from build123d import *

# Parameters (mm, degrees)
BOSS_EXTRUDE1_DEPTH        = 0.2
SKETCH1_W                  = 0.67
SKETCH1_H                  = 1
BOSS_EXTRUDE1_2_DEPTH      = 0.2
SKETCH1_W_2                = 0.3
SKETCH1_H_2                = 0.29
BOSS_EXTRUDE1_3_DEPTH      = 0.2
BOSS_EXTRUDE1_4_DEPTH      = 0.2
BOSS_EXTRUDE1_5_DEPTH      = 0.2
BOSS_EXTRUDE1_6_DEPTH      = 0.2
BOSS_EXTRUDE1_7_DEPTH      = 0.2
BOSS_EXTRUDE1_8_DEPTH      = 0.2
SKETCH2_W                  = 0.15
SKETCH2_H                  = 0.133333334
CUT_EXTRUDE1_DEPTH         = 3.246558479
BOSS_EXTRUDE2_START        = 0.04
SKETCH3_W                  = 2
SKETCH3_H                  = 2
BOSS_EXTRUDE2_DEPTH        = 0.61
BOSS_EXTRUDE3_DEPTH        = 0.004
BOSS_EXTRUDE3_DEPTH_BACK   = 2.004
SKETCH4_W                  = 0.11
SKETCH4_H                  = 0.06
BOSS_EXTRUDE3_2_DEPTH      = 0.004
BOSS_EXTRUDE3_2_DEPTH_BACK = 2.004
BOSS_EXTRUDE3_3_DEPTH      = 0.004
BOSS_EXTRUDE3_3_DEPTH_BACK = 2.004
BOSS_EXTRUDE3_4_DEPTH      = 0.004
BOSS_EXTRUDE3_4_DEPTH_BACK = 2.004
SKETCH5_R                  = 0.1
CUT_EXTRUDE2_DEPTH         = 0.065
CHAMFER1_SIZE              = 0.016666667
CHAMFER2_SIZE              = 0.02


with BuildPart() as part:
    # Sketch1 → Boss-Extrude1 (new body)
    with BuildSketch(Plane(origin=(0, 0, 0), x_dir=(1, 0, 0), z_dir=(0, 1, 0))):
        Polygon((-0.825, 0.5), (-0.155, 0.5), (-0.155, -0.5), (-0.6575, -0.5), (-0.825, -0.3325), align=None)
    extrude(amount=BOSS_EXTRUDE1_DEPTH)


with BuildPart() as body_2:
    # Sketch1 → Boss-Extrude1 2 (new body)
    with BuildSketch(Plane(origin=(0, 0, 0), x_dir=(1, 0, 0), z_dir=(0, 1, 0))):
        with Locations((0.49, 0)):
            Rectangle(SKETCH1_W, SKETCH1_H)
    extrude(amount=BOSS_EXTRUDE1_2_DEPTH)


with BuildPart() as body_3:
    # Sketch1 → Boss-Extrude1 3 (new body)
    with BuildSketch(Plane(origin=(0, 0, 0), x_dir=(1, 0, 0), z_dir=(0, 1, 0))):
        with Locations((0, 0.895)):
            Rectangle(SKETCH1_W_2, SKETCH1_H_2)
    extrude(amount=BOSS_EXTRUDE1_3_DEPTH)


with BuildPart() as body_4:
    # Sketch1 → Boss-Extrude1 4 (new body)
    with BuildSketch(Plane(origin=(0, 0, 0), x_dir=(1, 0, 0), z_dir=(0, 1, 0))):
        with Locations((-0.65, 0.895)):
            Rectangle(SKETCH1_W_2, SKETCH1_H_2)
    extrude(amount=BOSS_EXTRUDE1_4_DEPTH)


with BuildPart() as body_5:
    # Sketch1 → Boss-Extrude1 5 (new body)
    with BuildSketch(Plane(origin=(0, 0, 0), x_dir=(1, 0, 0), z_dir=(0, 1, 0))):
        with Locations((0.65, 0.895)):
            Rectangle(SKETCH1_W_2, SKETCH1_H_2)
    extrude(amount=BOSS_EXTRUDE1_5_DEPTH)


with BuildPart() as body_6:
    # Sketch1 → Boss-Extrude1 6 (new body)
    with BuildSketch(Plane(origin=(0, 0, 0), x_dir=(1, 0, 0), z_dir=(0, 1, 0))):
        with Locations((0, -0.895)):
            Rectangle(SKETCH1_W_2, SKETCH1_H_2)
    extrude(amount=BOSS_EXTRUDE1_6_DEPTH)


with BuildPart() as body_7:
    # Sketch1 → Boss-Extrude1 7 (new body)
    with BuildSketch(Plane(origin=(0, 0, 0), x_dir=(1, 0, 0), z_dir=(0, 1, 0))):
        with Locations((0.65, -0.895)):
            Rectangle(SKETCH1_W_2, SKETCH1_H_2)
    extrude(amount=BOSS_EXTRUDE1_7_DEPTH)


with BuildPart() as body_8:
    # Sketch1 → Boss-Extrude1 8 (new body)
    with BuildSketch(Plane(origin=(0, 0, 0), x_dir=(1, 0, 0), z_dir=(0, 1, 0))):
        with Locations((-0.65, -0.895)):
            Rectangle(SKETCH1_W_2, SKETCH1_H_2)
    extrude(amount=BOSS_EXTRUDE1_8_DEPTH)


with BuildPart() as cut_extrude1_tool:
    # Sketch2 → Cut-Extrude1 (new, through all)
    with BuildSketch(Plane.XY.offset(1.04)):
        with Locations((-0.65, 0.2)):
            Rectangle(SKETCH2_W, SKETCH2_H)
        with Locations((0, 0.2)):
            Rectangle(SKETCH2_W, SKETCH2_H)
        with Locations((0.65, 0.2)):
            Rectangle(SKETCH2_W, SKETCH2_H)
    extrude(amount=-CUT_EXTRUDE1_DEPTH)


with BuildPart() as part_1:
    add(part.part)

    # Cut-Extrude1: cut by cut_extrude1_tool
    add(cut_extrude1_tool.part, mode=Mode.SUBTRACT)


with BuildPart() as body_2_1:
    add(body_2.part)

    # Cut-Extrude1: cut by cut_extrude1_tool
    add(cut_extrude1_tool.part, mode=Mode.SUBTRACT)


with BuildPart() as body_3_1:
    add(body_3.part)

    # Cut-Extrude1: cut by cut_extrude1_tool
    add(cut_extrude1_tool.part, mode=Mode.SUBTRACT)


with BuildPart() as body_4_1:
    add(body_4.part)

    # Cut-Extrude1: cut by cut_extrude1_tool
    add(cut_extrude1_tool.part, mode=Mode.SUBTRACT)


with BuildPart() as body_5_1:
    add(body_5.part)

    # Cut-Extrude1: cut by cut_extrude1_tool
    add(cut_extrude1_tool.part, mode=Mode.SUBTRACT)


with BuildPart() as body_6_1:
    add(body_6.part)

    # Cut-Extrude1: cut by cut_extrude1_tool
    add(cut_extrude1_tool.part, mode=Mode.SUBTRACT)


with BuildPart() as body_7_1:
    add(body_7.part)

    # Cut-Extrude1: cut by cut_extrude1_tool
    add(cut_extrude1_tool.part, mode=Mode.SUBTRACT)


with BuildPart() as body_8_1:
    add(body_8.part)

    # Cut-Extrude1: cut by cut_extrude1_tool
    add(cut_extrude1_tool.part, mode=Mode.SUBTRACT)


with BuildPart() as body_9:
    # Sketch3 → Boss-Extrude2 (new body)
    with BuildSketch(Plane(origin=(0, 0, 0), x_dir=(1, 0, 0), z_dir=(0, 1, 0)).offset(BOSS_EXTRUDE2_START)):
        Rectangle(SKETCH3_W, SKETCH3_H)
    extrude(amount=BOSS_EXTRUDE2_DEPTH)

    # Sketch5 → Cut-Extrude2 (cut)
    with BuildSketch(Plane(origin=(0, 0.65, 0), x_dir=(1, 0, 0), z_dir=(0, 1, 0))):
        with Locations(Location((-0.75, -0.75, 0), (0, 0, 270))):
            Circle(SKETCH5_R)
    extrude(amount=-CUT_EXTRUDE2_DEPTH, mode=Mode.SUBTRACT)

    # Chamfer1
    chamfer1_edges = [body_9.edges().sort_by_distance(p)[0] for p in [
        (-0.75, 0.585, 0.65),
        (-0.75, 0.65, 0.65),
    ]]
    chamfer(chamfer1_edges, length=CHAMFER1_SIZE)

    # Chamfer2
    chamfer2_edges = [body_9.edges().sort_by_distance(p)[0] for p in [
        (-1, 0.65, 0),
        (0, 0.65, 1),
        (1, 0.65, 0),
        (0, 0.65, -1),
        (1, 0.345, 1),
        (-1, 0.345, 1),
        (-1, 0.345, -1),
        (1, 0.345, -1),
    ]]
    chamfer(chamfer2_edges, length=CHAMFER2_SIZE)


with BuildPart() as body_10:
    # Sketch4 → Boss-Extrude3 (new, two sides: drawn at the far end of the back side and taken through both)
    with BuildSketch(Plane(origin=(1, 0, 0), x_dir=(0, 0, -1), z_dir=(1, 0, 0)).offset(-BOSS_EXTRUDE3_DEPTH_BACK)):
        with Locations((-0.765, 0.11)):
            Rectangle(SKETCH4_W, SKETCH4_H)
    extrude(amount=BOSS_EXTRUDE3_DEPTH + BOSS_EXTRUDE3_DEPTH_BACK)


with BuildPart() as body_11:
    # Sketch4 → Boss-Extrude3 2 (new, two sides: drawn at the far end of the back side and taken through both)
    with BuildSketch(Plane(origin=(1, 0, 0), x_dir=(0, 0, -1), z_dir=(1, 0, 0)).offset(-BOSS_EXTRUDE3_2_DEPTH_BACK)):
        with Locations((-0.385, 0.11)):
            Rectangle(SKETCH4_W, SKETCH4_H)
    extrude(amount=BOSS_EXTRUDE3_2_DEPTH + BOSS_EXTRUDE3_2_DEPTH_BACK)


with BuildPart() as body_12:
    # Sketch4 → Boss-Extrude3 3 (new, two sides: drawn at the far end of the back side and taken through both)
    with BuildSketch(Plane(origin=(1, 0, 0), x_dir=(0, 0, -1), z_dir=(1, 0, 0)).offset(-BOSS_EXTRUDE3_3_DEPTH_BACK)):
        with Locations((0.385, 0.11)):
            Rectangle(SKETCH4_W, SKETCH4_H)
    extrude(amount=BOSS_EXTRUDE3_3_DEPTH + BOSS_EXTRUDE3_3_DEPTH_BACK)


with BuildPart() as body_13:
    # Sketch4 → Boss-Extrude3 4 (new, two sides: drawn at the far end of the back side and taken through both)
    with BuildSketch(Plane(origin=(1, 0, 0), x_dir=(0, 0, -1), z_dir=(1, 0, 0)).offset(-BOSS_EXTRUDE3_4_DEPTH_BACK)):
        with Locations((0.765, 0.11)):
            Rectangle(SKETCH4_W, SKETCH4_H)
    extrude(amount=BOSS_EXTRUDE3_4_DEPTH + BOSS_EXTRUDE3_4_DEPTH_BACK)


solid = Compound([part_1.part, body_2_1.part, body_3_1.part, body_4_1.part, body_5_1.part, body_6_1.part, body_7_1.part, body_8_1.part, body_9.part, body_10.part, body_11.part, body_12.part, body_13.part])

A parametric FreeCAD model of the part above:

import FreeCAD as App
import Part
import Sketcher
from FreeCAD import Vector
Q = App.Units.Quantity


def edges_at(feature, points):
    """Names of the edges that pass closest to the given points."""
    edges = feature.Shape.Edges
    near = lambda p: min(range(len(edges)), key=lambda i: edges[i].distToShape(Part.Vertex(*p))[0])
    return sorted({f"Edge{near(p) + 1}" for p in points})


def add_polygon(sketch, points):
    """Adds a closed chain of lines whose ends are joined by coincident constraints."""
    first, n = sketch.GeometryCount, len(points)
    for a, b in zip(points, points[1:] + points[:1]):
        sketch.addGeometry(Part.LineSegment(App.Vector(*a, 0), App.Vector(*b, 0)), False)
    for i in range(n):
        sketch.addConstraint(Sketcher.Constraint("Coincident", first + i, 2, first + (i + 1) % n, 1))

doc = App.newDocument("Part")
body = doc.addObject("PartDesign::Body", "Body")

# Sketch on XZ plane
sketch1 = body.newObject("Sketcher::SketchObject", "Sketch")
sketch1.AttachmentSupport = (doc.getObject("XZ_Plane"), [""])
sketch1.MapMode = "FlatFace"
add_polygon(sketch1, [(-0.15, -0.5), (-0.82, -0.5), (-0.82, 0.33), (-0.66, 0.5), (-0.15, 0.5)])  # lines 0-4
sketch1.addConstraint([
    Sketcher.Constraint("Horizontal", 0),
    Sketcher.Constraint("Vertical", 1),
    Sketcher.Constraint("Horizontal", 3),
    Sketcher.Constraint("Vertical", 4),
    Sketcher.Constraint("DistanceY", 4, 2, 4, 1, Q("1 mm")),
    Sketcher.Constraint("Angle", 2, Q("45 deg")),
    Sketcher.Constraint("DistanceX", 0, 2, 0, 1, Q("0.67 mm")),
    Sketcher.Constraint("DistanceY", 0, 2, -1, 1, Q("0.5 mm")),
    Sketcher.Constraint("DistanceX", 3, 1, 3, 2, Q("0.5025 mm")),
    Sketcher.Constraint("DistanceX", 0, 2, -1, 1, Q("0.825 mm")),
])
pad1 = body.newObject("PartDesign::Pad", "Pad")
pad1.Profile = sketch1
pad1.Length = 0.2
pad1.Reversed = True
body2 = doc.addObject("PartDesign::Body", "Body001")

# Sketch on XZ plane
sketch2 = body2.newObject("Sketcher::SketchObject", "Sketch001")
sketch2.AttachmentSupport = (doc.getObject("XZ_Plane001"), [""])
sketch2.MapMode = "FlatFace"
add_polygon(sketch2, [(0.2, -0.5), (0.2, 0.5), (0.8, 0.5), (0.8, -0.5)])  # lines 0-3
sketch2.addConstraint([
    Sketcher.Constraint("Vertical", 0),
    Sketcher.Constraint("Horizontal", 1),
    Sketcher.Constraint("Vertical", 2),
    Sketcher.Constraint("Horizontal", 3),
    Sketcher.Constraint("DistanceY", 0, 1, 0, 2, Q("1 mm")),
    Sketcher.Constraint("DistanceX", 1, 1, 1, 2, Q("0.67 mm")),
    Sketcher.Constraint("DistanceY", -1, 1, 0, 2, Q("0.5 mm")),
    Sketcher.Constraint("DistanceX", -1, 1, 0, 2, Q("0.155 mm")),
])
pad2 = body2.newObject("PartDesign::Pad", "Pad001")
pad2.Profile = sketch2
pad2.Length = 0.2
pad2.Reversed = True
body3 = doc.addObject("PartDesign::Body", "Body002")

# Sketch on XZ plane
sketch3 = body3.newObject("Sketcher::SketchObject", "Sketch002")
sketch3.AttachmentSupport = (doc.getObject("XZ_Plane002"), [""])
sketch3.MapMode = "FlatFace"
add_polygon(sketch3, [(-0.15, -1.04), (-0.15, -0.75), (0.15, -0.75), (0.15, -1.04)])  # lines 0-3
sketch3.addConstraint([
    Sketcher.Constraint("Vertical", 0),
    Sketcher.Constraint("Horizontal", 1),
    Sketcher.Constraint("Vertical", 2),
    Sketcher.Constraint("Horizontal", 3),
    Sketcher.Constraint("DistanceX", 1, 1, 1, 2, Q("0.3 mm")),
    Sketcher.Constraint("DistanceY", 0, 1, 0, 2, Q("0.29 mm")),
    Sketcher.Constraint("DistanceX", 0, 2, -1, 1, Q("0.15 mm")),
    Sketcher.Constraint("DistanceY", 0, 2, -1, 1, Q("0.75 mm")),
])
pad3 = body3.newObject("PartDesign::Pad", "Pad002")
pad3.Profile = sketch3
pad3.Length = 0.2
pad3.Reversed = True
body4 = doc.addObject("PartDesign::Body", "Body003")

# Sketch on XZ plane
sketch4 = body4.newObject("Sketcher::SketchObject", "Sketch003")
sketch4.AttachmentSupport = (doc.getObject("XZ_Plane003"), [""])
sketch4.MapMode = "FlatFace"
add_polygon(sketch4, [(-0.8, -1.04), (-0.8, -0.75), (-0.5, -0.75), (-0.5, -1.04)])  # lines 0-3
sketch4.addConstraint([
    Sketcher.Constraint("Vertical", 0),
    Sketcher.Constraint("Horizontal", 1),
    Sketcher.Constraint("Vertical", 2),
    Sketcher.Constraint("Horizontal", 3),
    Sketcher.Constraint("DistanceX", 1, 1, 1, 2, Q("0.3 mm")),
    Sketcher.Constraint("DistanceY", 0, 1, 0, 2, Q("0.29 mm")),
    Sketcher.Constraint("DistanceX", 0, 2, -1, 1, Q("0.8 mm")),
    Sketcher.Constraint("DistanceY", 0, 2, -1, 1, Q("0.75 mm")),
])
pad4 = body4.newObject("PartDesign::Pad", "Pad003")
pad4.Profile = sketch4
pad4.Length = 0.2
pad4.Reversed = True
body5 = doc.addObject("PartDesign::Body", "Body004")

# Sketch on XZ plane
sketch5 = body5.newObject("Sketcher::SketchObject", "Sketch004")
sketch5.AttachmentSupport = (doc.getObject("XZ_Plane004"), [""])
sketch5.MapMode = "FlatFace"
add_polygon(sketch5, [(0.5, -1.04), (0.5, -0.75), (0.8, -0.75), (0.8, -1.04)])  # lines 0-3
sketch5.addConstraint([
    Sketcher.Constraint("Vertical", 0),
    Sketcher.Constraint("Horizontal", 1),
    Sketcher.Constraint("Vertical", 2),
    Sketcher.Constraint("Horizontal", 3),
    Sketcher.Constraint("DistanceX", 1, 1, 1, 2, Q("0.3 mm")),
    Sketcher.Constraint("DistanceY", 0, 1, 0, 2, Q("0.29 mm")),
    Sketcher.Constraint("DistanceX", -1, 1, 0, 2, Q("0.5 mm")),
    Sketcher.Constraint("DistanceY", 0, 2, -1, 1, Q("0.75 mm")),
])
pad5 = body5.newObject("PartDesign::Pad", "Pad004")
pad5.Profile = sketch5
pad5.Length = 0.2
pad5.Reversed = True
body6 = doc.addObject("PartDesign::Body", "Body005")

# Sketch on XZ plane
sketch6 = body6.newObject("Sketcher::SketchObject", "Sketch005")
sketch6.AttachmentSupport = (doc.getObject("XZ_Plane005"), [""])
sketch6.MapMode = "FlatFace"
add_polygon(sketch6, [(-0.15, 0.75), (-0.15, 1.04), (0.15, 1.04), (0.15, 0.75)])  # lines 0-3
sketch6.addConstraint([
    Sketcher.Constraint("Vertical", 0),
    Sketcher.Constraint("Horizontal", 1),
    Sketcher.Constraint("Vertical", 2),
    Sketcher.Constraint("Horizontal", 3),
    Sketcher.Constraint("DistanceX", 1, 1, 1, 2, Q("0.3 mm")),
    Sketcher.Constraint("DistanceY", 0, 1, 0, 2, Q("0.29 mm")),
    Sketcher.Constraint("DistanceX", 0, 2, -1, 1, Q("0.15 mm")),
    Sketcher.Constraint("DistanceY", -1, 1, 0, 2, Q("1.04 mm")),
])
pad6 = body6.newObject("PartDesign::Pad", "Pad005")
pad6.Profile = sketch6
pad6.Length = 0.2
pad6.Reversed = True
body7 = doc.addObject("PartDesign::Body", "Body006")

# Sketch on XZ plane
sketch7 = body7.newObject("Sketcher::SketchObject", "Sketch006")
sketch7.AttachmentSupport = (doc.getObject("XZ_Plane006"), [""])
sketch7.MapMode = "FlatFace"
add_polygon(sketch7, [(0.5, 0.75), (0.5, 1.04), (0.8, 1.04), (0.8, 0.75)])  # lines 0-3
sketch7.addConstraint([
    Sketcher.Constraint("Vertical", 0),
    Sketcher.Constraint("Horizontal", 1),
    Sketcher.Constraint("Vertical", 2),
    Sketcher.Constraint("Horizontal", 3),
    Sketcher.Constraint("DistanceX", 1, 1, 1, 2, Q("0.3 mm")),
    Sketcher.Constraint("DistanceY", 0, 1, 0, 2, Q("0.29 mm")),
    Sketcher.Constraint("DistanceX", -1, 1, 0, 2, Q("0.5 mm")),
    Sketcher.Constraint("DistanceY", -1, 1, 0, 2, Q("1.04 mm")),
])
pad7 = body7.newObject("PartDesign::Pad", "Pad006")
pad7.Profile = sketch7
pad7.Length = 0.2
pad7.Reversed = True
body8 = doc.addObject("PartDesign::Body", "Body007")

# Sketch on XZ plane
sketch8 = body8.newObject("Sketcher::SketchObject", "Sketch007")
sketch8.AttachmentSupport = (doc.getObject("XZ_Plane007"), [""])
sketch8.MapMode = "FlatFace"
add_polygon(sketch8, [(-0.8, 0.75), (-0.8, 1.04), (-0.5, 1.04), (-0.5, 0.75)])  # lines 0-3
sketch8.addConstraint([
    Sketcher.Constraint("Vertical", 0),
    Sketcher.Constraint("Horizontal", 1),
    Sketcher.Constraint("Vertical", 2),
    Sketcher.Constraint("Horizontal", 3),
    Sketcher.Constraint("DistanceX", 1, 1, 1, 2, Q("0.3 mm")),
    Sketcher.Constraint("DistanceY", 0, 1, 0, 2, Q("0.29 mm")),
    Sketcher.Constraint("DistanceX", 0, 2, -1, 1, Q("0.8 mm")),
    Sketcher.Constraint("DistanceY", -1, 1, 0, 2, Q("1.04 mm")),
])
pad8 = body8.newObject("PartDesign::Pad", "Pad007")
pad8.Profile = sketch8
pad8.Length = 0.2
pad8.Reversed = True
body9 = doc.addObject("PartDesign::Body", "Body008")
body9.AllowCompound = True

# Sketch on XY plane
sketch9 = body9.newObject("Sketcher::SketchObject", "Sketch008")
sketch9.AttachmentSupport = (doc.getObject("XY_Plane008"), [""])
sketch9.MapMode = "FlatFace"
sketch9.AttachmentOffset = App.Placement(Vector(0, 0, 1.04), App.Rotation())
add_polygon(sketch9, [(-0.72, 0.27), (-0.72, 0.13), (-0.57, 0.13), (-0.57, 0.27)])  # lines 0-3
add_polygon(sketch9, [(-0.07, 0.27), (-0.07, 0.13), (0.07, 0.13), (0.07, 0.27)])  # lines 4-7
add_polygon(sketch9, [(0.57, 0.27), (0.57, 0.13), (0.72, 0.13), (0.72, 0.27)])  # lines 8-11
sketch9.addConstraint([
    Sketcher.Constraint("Vertical", 0),
    Sketcher.Constraint("Horizontal", 1),
    Sketcher.Constraint("Vertical", 2),
    Sketcher.Constraint("Horizontal", 3),
    Sketcher.Constraint("Vertical", 4),
    Sketcher.Constraint("Horizontal", 5),
    Sketcher.Constraint("Vertical", 6),
    Sketcher.Constraint("Horizontal", 7),
    Sketcher.Constraint("Vertical", 8),
    Sketcher.Constraint("Horizontal", 9),
    Sketcher.Constraint("Vertical", 10),
    Sketcher.Constraint("Horizontal", 11),
    Sketcher.Constraint("Symmetric", 1, 2, 8, 2, -2),
    Sketcher.Constraint("Symmetric", 3, 2, 10, 2, -2),
    Sketcher.Constraint("Horizontal", 1, 2, 4, 2),
    Sketcher.Constraint("Horizontal", 3, 2, 6, 2),
    Sketcher.Constraint("Equal", 3, 5),
    Sketcher.Constraint("DistanceX", 1, 1, 1, 2, Q("0.15 mm")),
    Sketcher.Constraint("DistanceX", 1, 2, 4, 2, Q("0.5 mm")),
    Sketcher.Constraint("DistanceX", 5, 2, 8, 2, Q("0.5 mm")),
    Sketcher.Constraint("DistanceY", 0, 2, 0, 1, Q("0.133333 mm")),
    Sketcher.Constraint("DistanceY", -1, 1, 0, 2, Q("0.133333 mm")),
])
pad9 = body9.newObject("PartDesign::Pad", "Pad008")
pad9.Profile = sketch9
pad9.Length = 3.246558
pad9.Reversed = True
doc.recompute()

body10 = doc.addObject("PartDesign::Body", "Body009")
body10.BaseFeature = body9
boolean = body.newObject("PartDesign::Boolean", "Boolean")
boolean.Type = "Cut"
boolean.addObjects([body10])
doc.recompute()

body11 = doc.addObject("PartDesign::Body", "Body010")
body11.BaseFeature = body9
boolean2 = body2.newObject("PartDesign::Boolean", "Boolean001")
boolean2.Type = "Cut"
boolean2.addObjects([body11])
doc.recompute()

body12 = doc.addObject("PartDesign::Body", "Body011")
body12.BaseFeature = body9
boolean3 = body3.newObject("PartDesign::Boolean", "Boolean002")
boolean3.Type = "Cut"
boolean3.addObjects([body12])
doc.recompute()

body13 = doc.addObject("PartDesign::Body", "Body012")
body13.BaseFeature = body9
boolean4 = body4.newObject("PartDesign::Boolean", "Boolean003")
boolean4.Type = "Cut"
boolean4.addObjects([body13])
doc.recompute()

body14 = doc.addObject("PartDesign::Body", "Body013")
body14.BaseFeature = body9
boolean5 = body5.newObject("PartDesign::Boolean", "Boolean004")
boolean5.Type = "Cut"
boolean5.addObjects([body14])
doc.recompute()

body15 = doc.addObject("PartDesign::Body", "Body014")
body15.BaseFeature = body9
boolean6 = body6.newObject("PartDesign::Boolean", "Boolean005")
boolean6.Type = "Cut"
boolean6.addObjects([body15])
doc.recompute()

body16 = doc.addObject("PartDesign::Body", "Body015")
body16.BaseFeature = body9
boolean7 = body7.newObject("PartDesign::Boolean", "Boolean006")
boolean7.Type = "Cut"
boolean7.addObjects([body16])
doc.recompute()

boolean8 = body8.newObject("PartDesign::Boolean", "Boolean007")
boolean8.Type = "Cut"
boolean8.addObjects([body9])
body17 = doc.addObject("PartDesign::Body", "Body016")

# Sketch on XZ plane
sketch10 = body17.newObject("Sketcher::SketchObject", "Sketch009")
sketch10.AttachmentSupport = (doc.getObject("XZ_Plane016"), [""])
sketch10.MapMode = "FlatFace"
sketch10.AttachmentOffset = App.Placement(Vector(0, 0, -0.04), App.Rotation())
add_polygon(sketch10, [(-1, -1), (-1, 1), (1, 1), (1, -1)])  # lines 0-3
sketch10.addConstraint([
    Sketcher.Constraint("Vertical", 0),
    Sketcher.Constraint("Horizontal", 1),
    Sketcher.Constraint("Vertical", 2),
    Sketcher.Constraint("Horizontal", 3),
    Sketcher.Constraint("Symmetric", 0, 2, 2, 2, -1, 1),
    Sketcher.Constraint("Equal", 3, 0),
    Sketcher.Constraint("DistanceX", 1, 1, 1, 2, Q("2 mm")),
])
pad10 = body17.newObject("PartDesign::Pad", "Pad009")
pad10.Profile = sketch10
pad10.Length = 0.61
pad10.Reversed = True

# Sketch on XZ plane
sketch11 = body17.newObject("Sketcher::SketchObject", "Sketch010")
sketch11.AttachmentSupport = (doc.getObject("XZ_Plane016"), [""])
sketch11.MapMode = "FlatFace"
sketch11.AttachmentOffset = App.Placement(Vector(0, 0, -0.65), App.Rotation())
sketch11.addGeometry(Part.Circle(Vector(-0.75, 0.75, 0), Vector(0, 0, 1), 0.1), False)
sketch11.addConstraint([
    Sketcher.Constraint("Diameter", 0, Q("0.2 mm")),
    Sketcher.Constraint("DistanceX", 0, 3, -1, 1, Q("0.75 mm")),
    Sketcher.Constraint("DistanceY", -1, 1, 0, 3, Q("0.75 mm")),
])
pocket1 = body17.newObject("PartDesign::Pocket", "Pocket")
pocket1.Profile = sketch11
pocket1.Length = 0.065
pocket1.Reversed = True
doc.recompute()

chamfer = body17.newObject("PartDesign::Chamfer", "Chamfer")
chamfer.Base = (pocket1, edges_at(pocket1, [(-0.75, 0.585, 0.65), (-0.75, 0.65, 0.65)]))
chamfer.Size = 0.016667
doc.recompute()

chamfer2 = body17.newObject("PartDesign::Chamfer", "Chamfer001")
chamfer2.Base = (chamfer, edges_at(chamfer, [
    (-1, 0.65, 0),
    (0, 0.65, 1),
    (1, 0.65, 0),
    (0, 0.65, -1),
    (1, 0.345, 1),
    (-1, 0.345, 1),
    (-1, 0.345, -1),
    (1, 0.345, -1),
]))
chamfer2.Size = 0.02
body18 = doc.addObject("PartDesign::Body", "Body017")

# Sketch on YZ plane
sketch12 = body18.newObject("Sketcher::SketchObject", "Sketch011")
sketch12.AttachmentSupport = (doc.getObject("YZ_Plane017"), [""])
sketch12.MapMode = "FlatFace"
sketch12.AttachmentOffset = App.Placement(Vector(0, 0, 1), App.Rotation())
add_polygon(sketch12, [(0.14, 0.82), (0.08, 0.82), (0.08, 0.71), (0.14, 0.71)])  # lines 0-3
sketch12.addConstraint([
    Sketcher.Constraint("Horizontal", 0),
    Sketcher.Constraint("Vertical", 1),
    Sketcher.Constraint("Horizontal", 2),
    Sketcher.Constraint("Vertical", 3),
    Sketcher.Constraint("DistanceX", 0, 2, 0, 1, Q("0.06 mm")),
    Sketcher.Constraint("DistanceY", 1, 2, 1, 1, Q("0.11 mm")),
    Sketcher.Constraint("DistanceX", -1, 1, 0, 2, Q("0.08 mm")),
    Sketcher.Constraint("DistanceY", -1, 1, 0, 2, Q("0.82 mm")),
])
pad11 = body18.newObject("PartDesign::Pad", "Pad010")
pad11.Profile = sketch12
pad11.Type = "TwoLengths"
pad11.Length = 0.004
pad11.Length2 = 2.004
body19 = doc.addObject("PartDesign::Body", "Body018")

# Sketch on YZ plane
sketch13 = body19.newObject("Sketcher::SketchObject", "Sketch012")
sketch13.AttachmentSupport = (doc.getObject("YZ_Plane018"), [""])
sketch13.MapMode = "FlatFace"
sketch13.AttachmentOffset = App.Placement(Vector(0, 0, 1), App.Rotation())
add_polygon(sketch13, [(0.14, 0.44), (0.08, 0.44), (0.08, 0.33), (0.14, 0.33)])  # lines 0-3
sketch13.addConstraint([
    Sketcher.Constraint("Horizontal", 0),
    Sketcher.Constraint("Vertical", 1),
    Sketcher.Constraint("Horizontal", 2),
    Sketcher.Constraint("Vertical", 3),
    Sketcher.Constraint("DistanceX", 0, 2, 0, 1, Q("0.06 mm")),
    Sketcher.Constraint("DistanceY", 1, 2, 1, 1, Q("0.11 mm")),
    Sketcher.Constraint("DistanceX", -1, 1, 0, 2, Q("0.08 mm")),
    Sketcher.Constraint("DistanceY", -1, 1, 0, 2, Q("0.44 mm")),
])
pad12 = body19.newObject("PartDesign::Pad", "Pad011")
pad12.Profile = sketch13
pad12.Type = "TwoLengths"
pad12.Length = 0.004
pad12.Length2 = 2.004
body20 = doc.addObject("PartDesign::Body", "Body019")

# Sketch on YZ plane
sketch14 = body20.newObject("Sketcher::SketchObject", "Sketch013")
sketch14.AttachmentSupport = (doc.getObject("YZ_Plane019"), [""])
sketch14.MapMode = "FlatFace"
sketch14.AttachmentOffset = App.Placement(Vector(0, 0, 1), App.Rotation())
add_polygon(sketch14, [(0.14, -0.33), (0.08, -0.33), (0.08, -0.44), (0.14, -0.44)])  # lines 0-3
sketch14.addConstraint([
    Sketcher.Constraint("Horizontal", 0),
    Sketcher.Constraint("Vertical", 1),
    Sketcher.Constraint("Horizontal", 2),
    Sketcher.Constraint("Vertical", 3),
    Sketcher.Constraint("DistanceX", 0, 2, 0, 1, Q("0.06 mm")),
    Sketcher.Constraint("DistanceY", 1, 2, 1, 1, Q("0.11 mm")),
    Sketcher.Constraint("DistanceX", -1, 1, 0, 2, Q("0.08 mm")),
    Sketcher.Constraint("DistanceY", 0, 2, -1, 1, Q("0.33 mm")),
])
pad13 = body20.newObject("PartDesign::Pad", "Pad012")
pad13.Profile = sketch14
pad13.Type = "TwoLengths"
pad13.Length = 0.004
pad13.Length2 = 2.004
body21 = doc.addObject("PartDesign::Body", "Body020")

# Sketch on YZ plane
sketch15 = body21.newObject("Sketcher::SketchObject", "Sketch014")
sketch15.AttachmentSupport = (doc.getObject("YZ_Plane020"), [""])
sketch15.MapMode = "FlatFace"
sketch15.AttachmentOffset = App.Placement(Vector(0, 0, 1), App.Rotation())
add_polygon(sketch15, [(0.14, -0.71), (0.08, -0.71), (0.08, -0.82), (0.14, -0.82)])  # lines 0-3
sketch15.addConstraint([
    Sketcher.Constraint("Horizontal", 0),
    Sketcher.Constraint("Vertical", 1),
    Sketcher.Constraint("Horizontal", 2),
    Sketcher.Constraint("Vertical", 3),
    Sketcher.Constraint("DistanceX", 0, 2, 0, 1, Q("0.06 mm")),
    Sketcher.Constraint("DistanceY", 1, 2, 1, 1, Q("0.11 mm")),
    Sketcher.Constraint("DistanceX", -1, 1, 0, 2, Q("0.08 mm")),
    Sketcher.Constraint("DistanceY", 0, 2, -1, 1, Q("0.71 mm")),
])
pad14 = body21.newObject("PartDesign::Pad", "Pad013")
pad14.Profile = sketch15
pad14.Type = "TwoLengths"
pad14.Length = 0.004
pad14.Length2 = 2.004

doc.recompute()
